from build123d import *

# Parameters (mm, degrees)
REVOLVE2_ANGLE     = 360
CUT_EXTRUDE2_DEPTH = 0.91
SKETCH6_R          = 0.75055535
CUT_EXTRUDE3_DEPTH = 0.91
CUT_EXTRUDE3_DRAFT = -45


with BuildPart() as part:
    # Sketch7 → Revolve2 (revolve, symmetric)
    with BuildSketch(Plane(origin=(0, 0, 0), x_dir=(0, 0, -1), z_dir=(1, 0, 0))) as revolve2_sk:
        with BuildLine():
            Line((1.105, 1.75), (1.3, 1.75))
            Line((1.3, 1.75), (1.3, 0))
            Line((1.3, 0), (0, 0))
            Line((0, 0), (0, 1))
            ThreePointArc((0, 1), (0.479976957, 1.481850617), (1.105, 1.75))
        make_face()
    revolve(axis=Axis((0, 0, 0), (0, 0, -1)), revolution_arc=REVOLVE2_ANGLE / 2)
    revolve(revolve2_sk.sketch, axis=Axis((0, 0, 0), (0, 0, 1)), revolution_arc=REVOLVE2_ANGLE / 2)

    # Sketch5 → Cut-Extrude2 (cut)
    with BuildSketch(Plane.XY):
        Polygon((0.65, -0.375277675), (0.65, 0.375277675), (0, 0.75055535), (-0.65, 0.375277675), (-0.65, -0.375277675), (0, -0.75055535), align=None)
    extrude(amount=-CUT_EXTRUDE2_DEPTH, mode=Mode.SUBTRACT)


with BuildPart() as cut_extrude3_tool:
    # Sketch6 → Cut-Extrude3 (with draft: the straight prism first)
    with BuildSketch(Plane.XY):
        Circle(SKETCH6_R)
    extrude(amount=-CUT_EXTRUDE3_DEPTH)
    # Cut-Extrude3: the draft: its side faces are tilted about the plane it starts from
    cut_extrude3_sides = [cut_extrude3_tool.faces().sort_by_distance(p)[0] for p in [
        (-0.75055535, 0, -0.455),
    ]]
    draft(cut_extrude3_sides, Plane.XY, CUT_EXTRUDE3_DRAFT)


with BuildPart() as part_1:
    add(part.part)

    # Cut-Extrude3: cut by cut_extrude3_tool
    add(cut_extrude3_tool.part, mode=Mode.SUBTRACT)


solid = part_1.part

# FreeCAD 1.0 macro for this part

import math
import FreeCAD as App
import Part
import Sketcher
from FreeCAD import Vector
Q = App.Units.Quantity


def faces_at(feature, points):
    """Names of the faces that lie closest to the given points."""
    faces = feature.Shape.Faces
    near = lambda p: min(range(len(faces)), key=lambda i: faces[i].distToShape(Part.Vertex(*p))[0])
    return sorted({f"Face{near(p) + 1}" for p in points})

doc = App.newDocument("Part")
body = doc.addObject("PartDesign::Body", "Body")

sketch1 = body.newObject("Sketcher::SketchObject", "Sketch")
sketch1.AttachmentSupport = (doc.getObject("YZ_Plane"), [""])
sketch1.MapMode = "FlatFace"
sketch1.addGeometry([
    Part.LineSegment(Vector(1.75, -1.3, 0), Vector(1.75, -1.105, 0)),
    Part.ArcOfCircle(Part.Circle(Vector(0, -1.485758, 0), Vector(0, 0, 1), 1.790943), math.radians(12.274875), math.radians(56.057192)),
    Part.LineSegment(Vector(1, 0, 0), Vector(0, 0, 0)),
    Part.LineSegment(Vector(0, 0, 0), Vector(0, -1.3, 0)),
    Part.LineSegment(Vector(0, -1.3, 0), Vector(1.75, -1.3, 0)),
], False)
sketch1.addConstraint([
    Sketcher.Constraint("Coincident", 0, 2, 1, 1),
    Sketcher.Constraint("Coincident", 1, 2, 2, 1),
    Sketcher.Constraint("Coincident", 2, 2, 3, 1),
    Sketcher.Constraint("Coincident", 3, 2, 4, 1),
    Sketcher.Constraint("Coincident", 4, 2, 0, 1),
    Sketcher.Constraint("Vertical", 0),
    Sketcher.Constraint("Horizontal", 2),
    Sketcher.Constraint("Vertical", 3),
    Sketcher.Constraint("Horizontal", 4),
    Sketcher.Constraint("Coincident", 2, 2, -1, 1),
    Sketcher.Constraint("PointOnObject", 1, 3, -2),
    Sketcher.Constraint("DistanceX", 2, 2, 2, 1, 1.0),
    Sketcher.Constraint("DistanceY", 3, 2, 3, 1, 1.3),
    Sketcher.Constraint("DistanceX", 4, 1, 4, 2, 1.75),
    Sketcher.Constraint("DistanceY", 0, 1, 0, 2, 0.195),
])
revolution = body.newObject("PartDesign::Revolution", "Revolution")
revolution.Profile = sketch1
revolution.ReferenceAxis = (sketch1, ["V_Axis"])
revolution.Angle = 180
revolution.Reversed = True

sketch2 = body.newObject("Sketcher::SketchObject", "Sketch001")
sketch2.AttachmentSupport = (doc.getObject("YZ_Plane"), [""])
sketch2.MapMode = "FlatFace"
sketch2.addGeometry([
    Part.LineSegment(Vector(1.75, -1.3, 0), Vector(1.75, -1.105, 0)),
    Part.ArcOfCircle(Part.Circle(Vector(0, -1.485758, 0), Vector(0, 0, 1), 1.790943), math.radians(12.274875), math.radians(56.057192)),
    Part.LineSegment(Vector(1, 0, 0), Vector(0, 0, 0)),
    Part.LineSegment(Vector(0, 0, 0), Vector(0, -1.3, 0)),
    Part.LineSegment(Vector(0, -1.3, 0), Vector(1.75, -1.3, 0)),
], False)
sketch2.addConstraint([
    Sketcher.Constraint("Coincident", 0, 2, 1, 1),
    Sketcher.Constraint("Coincident", 1, 2, 2, 1),
    Sketcher.Constraint("Coincident", 2, 2, 3, 1),
    Sketcher.Constraint("Coincident", 3, 2, 4, 1),
    Sketcher.Constraint("Coincident", 4, 2, 0, 1),
    Sketcher.Constraint("Vertical", 0),
    Sketcher.Constraint("Horizontal", 2),
    Sketcher.Constraint("Vertical", 3),
    Sketcher.Constraint("Horizontal", 4),
    Sketcher.Constraint("Coincident", 2, 2, -1, 1),
    Sketcher.Constraint("PointOnObject", 1, 3, -2),
    Sketcher.Constraint("DistanceX", 2, 2, 2, 1, 1.0),
    Sketcher.Constraint("DistanceY", 3, 2, 3, 1, 1.3),
    Sketcher.Constraint("DistanceX", 4, 1, 4, 2, 1.75),
    Sketcher.Constraint("DistanceY", 0, 1, 0, 2, 0.195),
])
revolution2 = body.newObject("PartDesign::Revolution", "Revolution001")
revolution2.Profile = sketch2
revolution2.ReferenceAxis = (sketch2, ["V_Axis"])
revolution2.Angle = 180

sketch3 = body.newObject("Sketcher::SketchObject", "Sketch002")
sketch3.AttachmentSupport = (doc.getObject("XY_Plane"), [""])
sketch3.MapMode = "FlatFace"
sketch3.addGeometry([
    Part.LineSegment(Vector(0.65, -0.375278, 0), Vector(0.65, 0.375278, 0)),
    Part.LineSegment(Vector(0.65, 0.375278, 0), Vector(0, 0.750555, 0)),
    Part.LineSegment(Vector(0, 0.750555, 0), Vector(-0.65, 0.375278, 0)),
    Part.LineSegment(Vector(-0.65, 0.375278, 0), Vector(-0.65, -0.375278, 0)),
    Part.LineSegment(Vector(-0.65, -0.375278, 0), Vector(0, -0.750555, 0)),
    Part.LineSegment(Vector(0, -0.750555, 0), Vector(0.65, -0.375278, 0)),
], False)
sketch3.addConstraint([
    Sketcher.Constraint("Coincident", 0, 2, 1, 1),
    Sketcher.Constraint("Coincident", 1, 2, 2, 1),
    Sketcher.Constraint("Coincident", 2, 2, 3, 1),
    Sketcher.Constraint("Coincident", 3, 2, 4, 1),
    Sketcher.Constraint("Coincident", 4, 2, 5, 1),
    Sketcher.Constraint("Coincident", 5, 2, 0, 1),
    Sketcher.Constraint("Vertical", 0),
    Sketcher.Constraint("Vertical", 3),
    Sketcher.Constraint("Symmetric", 0, 2, 3, 2, -1, 1),
    Sketcher.Constraint("Symmetric", 1, 2, 4, 2, -1, 1),
    Sketcher.Constraint("PointOnObject", 1, 2, -2),
    Sketcher.Constraint("Parallel", 2, 5),
    Sketcher.Constraint("Horizontal", 0, 2, 2, 2),
    Sketcher.Constraint("Angle", 1, Q("150 deg")),
    Sketcher.Constraint("DistanceX", 2, 2, 0, 2, 1.3),
    Sketcher.Constraint("DistanceY", 0, 1, 0, 2, 0.750555),
])
pocket1 = body.newObject("PartDesign::Pocket", "Pocket")
pocket1.Profile = sketch3
pocket1.Length = 0.91
body2 = doc.addObject("PartDesign::Body", "Body001")

sketch4 = body2.newObject("Sketcher::SketchObject", "Sketch003")
sketch4.AttachmentSupport = (doc.getObject("XY_Plane001"), [""])
sketch4.MapMode = "FlatFace"
sketch4.addGeometry(Part.Circle(Vector(0, 0, 0), Vector(0, 0, 1), 0.750555), False)
sketch4.addConstraint([
    Sketcher.Constraint("Coincident", 0, 3, -1, 1),
    Sketcher.Constraint("Diameter", 0, 1.501111),
])
pad1 = body2.newObject("PartDesign::Pad", "Pad")
pad1.Profile = sketch4
pad1.Length = 0.91
pad1.Reversed = True
doc.recompute()

draft = body2.newObject("PartDesign::Draft", "Draft")
draft.Base = (pad1, faces_at(pad1, [(-0.751, 0, -0.455)]))
draft.NeutralPlane = (doc.getObject("XY_Plane001"), [""])
draft.Angle = 45
draft.Reversed = True
doc.recompute()

boolean = body.newObject("PartDesign::Boolean", "Boolean")
boolean.Type = "Cut"
boolean.addObjects([body2])

doc.recompute()
